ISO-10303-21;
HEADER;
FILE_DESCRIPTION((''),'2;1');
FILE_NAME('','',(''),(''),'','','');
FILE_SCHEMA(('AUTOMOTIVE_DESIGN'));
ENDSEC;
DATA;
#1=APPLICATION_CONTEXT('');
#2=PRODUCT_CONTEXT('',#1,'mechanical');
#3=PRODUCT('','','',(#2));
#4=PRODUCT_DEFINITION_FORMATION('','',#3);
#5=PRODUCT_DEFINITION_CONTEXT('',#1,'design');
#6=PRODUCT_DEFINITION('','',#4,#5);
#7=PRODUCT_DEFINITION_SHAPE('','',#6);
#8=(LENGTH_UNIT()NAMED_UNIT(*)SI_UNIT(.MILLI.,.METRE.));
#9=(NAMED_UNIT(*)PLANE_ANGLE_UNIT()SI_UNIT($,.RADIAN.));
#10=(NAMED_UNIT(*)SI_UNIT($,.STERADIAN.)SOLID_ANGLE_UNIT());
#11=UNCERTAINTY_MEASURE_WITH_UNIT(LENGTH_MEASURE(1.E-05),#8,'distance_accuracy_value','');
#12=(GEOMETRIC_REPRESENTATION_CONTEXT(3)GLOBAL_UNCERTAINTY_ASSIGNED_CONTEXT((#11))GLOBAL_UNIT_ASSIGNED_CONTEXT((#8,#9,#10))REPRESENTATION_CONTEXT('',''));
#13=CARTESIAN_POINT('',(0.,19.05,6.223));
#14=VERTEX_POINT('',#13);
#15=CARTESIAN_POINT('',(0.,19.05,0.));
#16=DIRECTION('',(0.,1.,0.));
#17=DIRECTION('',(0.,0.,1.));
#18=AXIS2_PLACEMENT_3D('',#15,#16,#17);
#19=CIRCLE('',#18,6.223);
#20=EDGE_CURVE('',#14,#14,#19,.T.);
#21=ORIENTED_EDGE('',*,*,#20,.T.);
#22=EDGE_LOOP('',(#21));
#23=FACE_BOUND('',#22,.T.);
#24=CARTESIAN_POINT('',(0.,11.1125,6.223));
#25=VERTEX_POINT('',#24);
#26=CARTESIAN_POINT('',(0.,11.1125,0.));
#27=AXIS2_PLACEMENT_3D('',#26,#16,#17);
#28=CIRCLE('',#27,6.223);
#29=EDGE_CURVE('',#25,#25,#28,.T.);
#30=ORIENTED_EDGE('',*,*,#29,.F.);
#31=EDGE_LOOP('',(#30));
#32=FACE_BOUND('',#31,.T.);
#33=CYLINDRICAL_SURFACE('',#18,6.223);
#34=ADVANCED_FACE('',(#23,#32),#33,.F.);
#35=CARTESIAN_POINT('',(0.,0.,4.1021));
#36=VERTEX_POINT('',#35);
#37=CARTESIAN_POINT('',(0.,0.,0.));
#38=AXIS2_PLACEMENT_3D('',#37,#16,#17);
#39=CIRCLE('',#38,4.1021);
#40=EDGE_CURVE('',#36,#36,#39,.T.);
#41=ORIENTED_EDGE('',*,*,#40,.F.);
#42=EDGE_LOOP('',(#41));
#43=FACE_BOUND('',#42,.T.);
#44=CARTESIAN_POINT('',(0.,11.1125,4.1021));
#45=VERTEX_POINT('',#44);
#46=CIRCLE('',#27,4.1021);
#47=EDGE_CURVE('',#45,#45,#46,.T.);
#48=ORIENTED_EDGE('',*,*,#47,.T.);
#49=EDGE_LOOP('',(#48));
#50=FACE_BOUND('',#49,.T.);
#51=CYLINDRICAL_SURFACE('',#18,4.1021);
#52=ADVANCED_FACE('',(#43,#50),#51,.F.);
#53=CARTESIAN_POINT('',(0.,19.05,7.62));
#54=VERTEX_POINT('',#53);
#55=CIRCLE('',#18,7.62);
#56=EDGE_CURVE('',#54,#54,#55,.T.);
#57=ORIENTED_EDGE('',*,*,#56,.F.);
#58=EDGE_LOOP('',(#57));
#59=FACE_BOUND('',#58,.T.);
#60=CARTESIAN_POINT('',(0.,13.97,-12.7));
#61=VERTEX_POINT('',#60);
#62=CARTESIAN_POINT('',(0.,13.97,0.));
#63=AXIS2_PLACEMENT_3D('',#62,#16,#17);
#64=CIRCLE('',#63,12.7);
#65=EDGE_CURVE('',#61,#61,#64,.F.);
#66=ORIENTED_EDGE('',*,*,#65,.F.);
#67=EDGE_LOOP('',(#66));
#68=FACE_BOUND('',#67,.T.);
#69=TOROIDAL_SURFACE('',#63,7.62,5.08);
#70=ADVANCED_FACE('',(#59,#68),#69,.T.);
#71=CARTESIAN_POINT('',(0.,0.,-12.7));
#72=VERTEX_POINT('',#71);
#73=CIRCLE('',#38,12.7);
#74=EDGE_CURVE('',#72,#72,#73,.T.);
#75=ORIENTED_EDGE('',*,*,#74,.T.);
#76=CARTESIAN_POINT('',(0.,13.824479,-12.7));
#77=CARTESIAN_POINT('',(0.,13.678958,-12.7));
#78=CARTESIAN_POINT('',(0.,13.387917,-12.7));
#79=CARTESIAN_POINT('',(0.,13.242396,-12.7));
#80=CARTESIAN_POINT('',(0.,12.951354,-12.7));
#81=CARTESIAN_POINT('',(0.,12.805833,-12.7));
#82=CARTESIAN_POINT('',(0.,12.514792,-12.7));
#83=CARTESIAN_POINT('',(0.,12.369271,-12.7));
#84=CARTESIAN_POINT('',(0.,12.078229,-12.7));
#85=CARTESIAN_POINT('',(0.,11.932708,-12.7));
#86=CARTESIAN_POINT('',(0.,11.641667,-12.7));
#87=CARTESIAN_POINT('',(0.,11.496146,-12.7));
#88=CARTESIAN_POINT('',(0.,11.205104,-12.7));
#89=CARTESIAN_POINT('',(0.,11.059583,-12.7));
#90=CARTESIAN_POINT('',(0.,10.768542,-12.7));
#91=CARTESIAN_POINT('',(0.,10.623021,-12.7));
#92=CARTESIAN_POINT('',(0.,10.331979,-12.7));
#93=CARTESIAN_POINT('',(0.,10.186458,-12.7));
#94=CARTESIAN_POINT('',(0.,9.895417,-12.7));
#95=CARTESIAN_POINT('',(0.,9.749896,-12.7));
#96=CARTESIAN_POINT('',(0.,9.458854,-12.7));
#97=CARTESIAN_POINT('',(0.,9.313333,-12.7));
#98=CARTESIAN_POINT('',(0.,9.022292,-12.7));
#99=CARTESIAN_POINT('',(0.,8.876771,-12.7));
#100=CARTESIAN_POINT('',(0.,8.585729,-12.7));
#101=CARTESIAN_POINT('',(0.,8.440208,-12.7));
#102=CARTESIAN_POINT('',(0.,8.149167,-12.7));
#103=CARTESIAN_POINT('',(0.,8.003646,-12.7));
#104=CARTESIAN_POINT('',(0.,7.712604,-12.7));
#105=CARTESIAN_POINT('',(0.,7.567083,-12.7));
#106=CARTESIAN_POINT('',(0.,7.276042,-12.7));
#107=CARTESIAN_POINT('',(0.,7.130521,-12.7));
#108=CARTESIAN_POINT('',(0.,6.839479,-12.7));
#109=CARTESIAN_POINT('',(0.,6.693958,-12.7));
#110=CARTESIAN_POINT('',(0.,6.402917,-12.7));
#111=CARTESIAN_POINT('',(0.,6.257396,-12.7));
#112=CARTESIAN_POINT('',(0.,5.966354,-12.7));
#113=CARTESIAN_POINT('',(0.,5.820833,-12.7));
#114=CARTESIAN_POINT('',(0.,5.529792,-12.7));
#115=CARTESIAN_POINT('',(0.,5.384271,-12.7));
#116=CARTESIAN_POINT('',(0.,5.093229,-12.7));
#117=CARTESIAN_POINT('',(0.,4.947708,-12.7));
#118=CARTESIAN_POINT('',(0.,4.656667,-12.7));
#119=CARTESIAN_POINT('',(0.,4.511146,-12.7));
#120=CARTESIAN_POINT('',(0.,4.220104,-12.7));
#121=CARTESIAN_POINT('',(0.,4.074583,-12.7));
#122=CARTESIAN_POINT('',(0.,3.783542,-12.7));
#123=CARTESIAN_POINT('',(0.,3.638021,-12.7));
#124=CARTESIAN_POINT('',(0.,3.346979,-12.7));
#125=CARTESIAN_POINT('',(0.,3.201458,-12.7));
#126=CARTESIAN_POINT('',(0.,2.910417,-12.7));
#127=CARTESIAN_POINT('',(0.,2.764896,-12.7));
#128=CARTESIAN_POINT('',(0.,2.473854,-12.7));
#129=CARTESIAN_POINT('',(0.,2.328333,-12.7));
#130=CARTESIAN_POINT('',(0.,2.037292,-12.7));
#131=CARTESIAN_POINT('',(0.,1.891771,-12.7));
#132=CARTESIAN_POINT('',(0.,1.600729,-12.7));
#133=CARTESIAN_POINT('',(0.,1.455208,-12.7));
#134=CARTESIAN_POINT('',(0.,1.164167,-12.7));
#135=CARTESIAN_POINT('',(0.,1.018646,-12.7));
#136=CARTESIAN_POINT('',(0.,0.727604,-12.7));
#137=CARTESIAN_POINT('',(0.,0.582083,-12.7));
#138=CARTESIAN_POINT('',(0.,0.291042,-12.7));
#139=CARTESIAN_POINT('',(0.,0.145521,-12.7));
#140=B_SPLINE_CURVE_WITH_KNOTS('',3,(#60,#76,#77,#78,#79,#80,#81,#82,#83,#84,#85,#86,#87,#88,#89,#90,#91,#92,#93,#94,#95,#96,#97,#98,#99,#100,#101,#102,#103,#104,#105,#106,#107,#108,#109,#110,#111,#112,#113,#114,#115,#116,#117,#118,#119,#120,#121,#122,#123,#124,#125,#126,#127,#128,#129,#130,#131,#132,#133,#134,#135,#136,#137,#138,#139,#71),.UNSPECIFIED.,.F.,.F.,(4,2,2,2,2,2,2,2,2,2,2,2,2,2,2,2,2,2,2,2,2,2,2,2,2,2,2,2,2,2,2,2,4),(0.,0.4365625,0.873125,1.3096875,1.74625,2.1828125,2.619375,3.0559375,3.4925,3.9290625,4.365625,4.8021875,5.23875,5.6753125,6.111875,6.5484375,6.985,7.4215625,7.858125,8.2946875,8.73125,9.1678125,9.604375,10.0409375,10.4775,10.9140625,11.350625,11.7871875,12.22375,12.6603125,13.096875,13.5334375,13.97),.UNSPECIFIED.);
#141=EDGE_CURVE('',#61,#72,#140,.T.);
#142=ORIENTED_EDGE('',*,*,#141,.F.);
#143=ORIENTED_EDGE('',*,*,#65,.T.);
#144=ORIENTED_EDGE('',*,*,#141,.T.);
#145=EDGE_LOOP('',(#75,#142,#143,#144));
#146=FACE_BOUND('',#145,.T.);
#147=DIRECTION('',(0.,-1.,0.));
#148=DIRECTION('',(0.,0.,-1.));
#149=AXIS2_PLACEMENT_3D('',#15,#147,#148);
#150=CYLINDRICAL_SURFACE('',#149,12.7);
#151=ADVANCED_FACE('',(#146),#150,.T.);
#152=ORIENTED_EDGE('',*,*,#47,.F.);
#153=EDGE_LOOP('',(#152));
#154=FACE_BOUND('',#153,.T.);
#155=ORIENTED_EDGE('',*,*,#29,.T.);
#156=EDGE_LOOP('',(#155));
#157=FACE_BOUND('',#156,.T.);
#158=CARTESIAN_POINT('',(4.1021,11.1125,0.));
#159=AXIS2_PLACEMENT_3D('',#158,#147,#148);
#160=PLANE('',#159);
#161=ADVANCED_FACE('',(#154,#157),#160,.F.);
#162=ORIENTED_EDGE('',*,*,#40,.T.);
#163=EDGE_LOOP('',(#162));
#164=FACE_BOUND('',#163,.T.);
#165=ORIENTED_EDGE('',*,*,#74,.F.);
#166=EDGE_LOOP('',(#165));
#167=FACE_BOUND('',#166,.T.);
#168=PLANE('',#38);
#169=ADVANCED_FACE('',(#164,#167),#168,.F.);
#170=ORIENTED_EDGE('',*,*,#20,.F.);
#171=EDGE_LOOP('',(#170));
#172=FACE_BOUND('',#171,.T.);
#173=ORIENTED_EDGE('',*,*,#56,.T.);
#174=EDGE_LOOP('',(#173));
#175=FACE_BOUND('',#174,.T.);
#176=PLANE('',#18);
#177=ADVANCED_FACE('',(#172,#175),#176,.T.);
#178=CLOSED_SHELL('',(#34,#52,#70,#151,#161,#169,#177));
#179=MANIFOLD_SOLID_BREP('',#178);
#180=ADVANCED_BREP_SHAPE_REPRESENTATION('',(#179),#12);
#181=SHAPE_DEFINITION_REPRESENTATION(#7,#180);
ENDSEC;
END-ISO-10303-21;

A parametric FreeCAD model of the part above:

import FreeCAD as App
import Part
import Sketcher
from FreeCAD import Vector
Q = App.Units.Quantity


def edges_at(feature, points):
    """Names of the edges that pass closest to the given points."""
    edges = feature.Shape.Edges
    near = lambda p: min(range(len(edges)), key=lambda i: edges[i].distToShape(Part.Vertex(*p))[0])
    return sorted({f"Edge{near(p) + 1}" for p in points})

doc = App.newDocument("Part")
params = doc.addObject("Spreadsheet::Sheet", "Params")
for row, (alias, value) in enumerate([
    ("sketch1_diameter", "1 in"),
    ("pad1_length", "0.75 in"),
    ("sketch2_diameter", "0.323 in"),
    ("hole_diameter", "0.323 in"),
    ("hole_depth", "0.7775 in"),
    ("hole_cbore_diameter", "0.49 in"),
    ("hole_cbore_depth", "0.3125 in"),
    ("fillet_radius", "0.2 in"),
], start=1):
    params.set(f"A{row}", alias)
    params.set(f"B{row}", "=" + value)
    params.setAlias(f"B{row}", alias)

body = doc.addObject("PartDesign::Body", "Body")

# Sketch on XZ plane
sketch1 = body.newObject("Sketcher::SketchObject", "Sketch")
sketch1.AttachmentSupport = (doc.getObject("XZ_Plane"), [""])
sketch1.MapMode = "FlatFace"
sketch1.addGeometry(Part.Circle(Vector(0, 0, 0), Vector(0, 0, 1), 13), False)
sketch1.addConstraint([
    Sketcher.Constraint("Coincident", 0, 3, -1, 1),
    Sketcher.Constraint("Diameter", 0, Q("1 in")),
])
sketch1.setExpression("Constraints[1]", "Params.sketch1_diameter")
pad1 = body.newObject("PartDesign::Pad", "Pad")
pad1.Profile = sketch1
pad1.setExpression("Length", "Params.pad1_length")
pad1.Reversed = True

# Sketch on XZ plane
sketch2 = body.newObject("Sketcher::SketchObject", "Sketch001")
sketch2.AttachmentSupport = (doc.getObject("XZ_Plane"), [""])
sketch2.MapMode = "FlatFace"
sketch2.AttachmentOffset = App.Placement(Vector(0, 0, -0.75 * 25.4), App.Rotation())
sketch2.addGeometry(Part.Circle(Vector(0, 0, 0), Vector(0, 0, 1), 4.1), False)
sketch2.addConstraint([
    Sketcher.Constraint("Coincident", 0, 3, -1, 1),
    Sketcher.Constraint("Diameter", 0, Q("0.323 in")),
])
sketch2.setExpression("Constraints[1]", "Params.sketch2_diameter")
doc.recompute()
hole = body.newObject("PartDesign::Hole", "Hole")
hole.Profile = sketch2
hole.ThreadType = "None"
hole.setExpression("Diameter", "Params.hole_diameter")
hole.DepthType = "Dimension"
hole.setExpression("Depth", "Params.hole_depth")
hole.DrillPoint = "Angled"
hole.DrillPointAngle = 118
hole.HoleCutType = "Counterbore"
hole.setExpression("HoleCutDiameter", "Params.hole_cbore_diameter")
hole.setExpression("HoleCutDepth", "Params.hole_cbore_depth")
hole.Reversed = True
doc.recompute()

fillet = body.newObject("PartDesign::Fillet", "Fillet")
fillet.Base = (hole, edges_at(hole, [(0, 19.05, 12.7)]))
fillet.setExpression("Radius", "Params.fillet_radius")

doc.recompute()
